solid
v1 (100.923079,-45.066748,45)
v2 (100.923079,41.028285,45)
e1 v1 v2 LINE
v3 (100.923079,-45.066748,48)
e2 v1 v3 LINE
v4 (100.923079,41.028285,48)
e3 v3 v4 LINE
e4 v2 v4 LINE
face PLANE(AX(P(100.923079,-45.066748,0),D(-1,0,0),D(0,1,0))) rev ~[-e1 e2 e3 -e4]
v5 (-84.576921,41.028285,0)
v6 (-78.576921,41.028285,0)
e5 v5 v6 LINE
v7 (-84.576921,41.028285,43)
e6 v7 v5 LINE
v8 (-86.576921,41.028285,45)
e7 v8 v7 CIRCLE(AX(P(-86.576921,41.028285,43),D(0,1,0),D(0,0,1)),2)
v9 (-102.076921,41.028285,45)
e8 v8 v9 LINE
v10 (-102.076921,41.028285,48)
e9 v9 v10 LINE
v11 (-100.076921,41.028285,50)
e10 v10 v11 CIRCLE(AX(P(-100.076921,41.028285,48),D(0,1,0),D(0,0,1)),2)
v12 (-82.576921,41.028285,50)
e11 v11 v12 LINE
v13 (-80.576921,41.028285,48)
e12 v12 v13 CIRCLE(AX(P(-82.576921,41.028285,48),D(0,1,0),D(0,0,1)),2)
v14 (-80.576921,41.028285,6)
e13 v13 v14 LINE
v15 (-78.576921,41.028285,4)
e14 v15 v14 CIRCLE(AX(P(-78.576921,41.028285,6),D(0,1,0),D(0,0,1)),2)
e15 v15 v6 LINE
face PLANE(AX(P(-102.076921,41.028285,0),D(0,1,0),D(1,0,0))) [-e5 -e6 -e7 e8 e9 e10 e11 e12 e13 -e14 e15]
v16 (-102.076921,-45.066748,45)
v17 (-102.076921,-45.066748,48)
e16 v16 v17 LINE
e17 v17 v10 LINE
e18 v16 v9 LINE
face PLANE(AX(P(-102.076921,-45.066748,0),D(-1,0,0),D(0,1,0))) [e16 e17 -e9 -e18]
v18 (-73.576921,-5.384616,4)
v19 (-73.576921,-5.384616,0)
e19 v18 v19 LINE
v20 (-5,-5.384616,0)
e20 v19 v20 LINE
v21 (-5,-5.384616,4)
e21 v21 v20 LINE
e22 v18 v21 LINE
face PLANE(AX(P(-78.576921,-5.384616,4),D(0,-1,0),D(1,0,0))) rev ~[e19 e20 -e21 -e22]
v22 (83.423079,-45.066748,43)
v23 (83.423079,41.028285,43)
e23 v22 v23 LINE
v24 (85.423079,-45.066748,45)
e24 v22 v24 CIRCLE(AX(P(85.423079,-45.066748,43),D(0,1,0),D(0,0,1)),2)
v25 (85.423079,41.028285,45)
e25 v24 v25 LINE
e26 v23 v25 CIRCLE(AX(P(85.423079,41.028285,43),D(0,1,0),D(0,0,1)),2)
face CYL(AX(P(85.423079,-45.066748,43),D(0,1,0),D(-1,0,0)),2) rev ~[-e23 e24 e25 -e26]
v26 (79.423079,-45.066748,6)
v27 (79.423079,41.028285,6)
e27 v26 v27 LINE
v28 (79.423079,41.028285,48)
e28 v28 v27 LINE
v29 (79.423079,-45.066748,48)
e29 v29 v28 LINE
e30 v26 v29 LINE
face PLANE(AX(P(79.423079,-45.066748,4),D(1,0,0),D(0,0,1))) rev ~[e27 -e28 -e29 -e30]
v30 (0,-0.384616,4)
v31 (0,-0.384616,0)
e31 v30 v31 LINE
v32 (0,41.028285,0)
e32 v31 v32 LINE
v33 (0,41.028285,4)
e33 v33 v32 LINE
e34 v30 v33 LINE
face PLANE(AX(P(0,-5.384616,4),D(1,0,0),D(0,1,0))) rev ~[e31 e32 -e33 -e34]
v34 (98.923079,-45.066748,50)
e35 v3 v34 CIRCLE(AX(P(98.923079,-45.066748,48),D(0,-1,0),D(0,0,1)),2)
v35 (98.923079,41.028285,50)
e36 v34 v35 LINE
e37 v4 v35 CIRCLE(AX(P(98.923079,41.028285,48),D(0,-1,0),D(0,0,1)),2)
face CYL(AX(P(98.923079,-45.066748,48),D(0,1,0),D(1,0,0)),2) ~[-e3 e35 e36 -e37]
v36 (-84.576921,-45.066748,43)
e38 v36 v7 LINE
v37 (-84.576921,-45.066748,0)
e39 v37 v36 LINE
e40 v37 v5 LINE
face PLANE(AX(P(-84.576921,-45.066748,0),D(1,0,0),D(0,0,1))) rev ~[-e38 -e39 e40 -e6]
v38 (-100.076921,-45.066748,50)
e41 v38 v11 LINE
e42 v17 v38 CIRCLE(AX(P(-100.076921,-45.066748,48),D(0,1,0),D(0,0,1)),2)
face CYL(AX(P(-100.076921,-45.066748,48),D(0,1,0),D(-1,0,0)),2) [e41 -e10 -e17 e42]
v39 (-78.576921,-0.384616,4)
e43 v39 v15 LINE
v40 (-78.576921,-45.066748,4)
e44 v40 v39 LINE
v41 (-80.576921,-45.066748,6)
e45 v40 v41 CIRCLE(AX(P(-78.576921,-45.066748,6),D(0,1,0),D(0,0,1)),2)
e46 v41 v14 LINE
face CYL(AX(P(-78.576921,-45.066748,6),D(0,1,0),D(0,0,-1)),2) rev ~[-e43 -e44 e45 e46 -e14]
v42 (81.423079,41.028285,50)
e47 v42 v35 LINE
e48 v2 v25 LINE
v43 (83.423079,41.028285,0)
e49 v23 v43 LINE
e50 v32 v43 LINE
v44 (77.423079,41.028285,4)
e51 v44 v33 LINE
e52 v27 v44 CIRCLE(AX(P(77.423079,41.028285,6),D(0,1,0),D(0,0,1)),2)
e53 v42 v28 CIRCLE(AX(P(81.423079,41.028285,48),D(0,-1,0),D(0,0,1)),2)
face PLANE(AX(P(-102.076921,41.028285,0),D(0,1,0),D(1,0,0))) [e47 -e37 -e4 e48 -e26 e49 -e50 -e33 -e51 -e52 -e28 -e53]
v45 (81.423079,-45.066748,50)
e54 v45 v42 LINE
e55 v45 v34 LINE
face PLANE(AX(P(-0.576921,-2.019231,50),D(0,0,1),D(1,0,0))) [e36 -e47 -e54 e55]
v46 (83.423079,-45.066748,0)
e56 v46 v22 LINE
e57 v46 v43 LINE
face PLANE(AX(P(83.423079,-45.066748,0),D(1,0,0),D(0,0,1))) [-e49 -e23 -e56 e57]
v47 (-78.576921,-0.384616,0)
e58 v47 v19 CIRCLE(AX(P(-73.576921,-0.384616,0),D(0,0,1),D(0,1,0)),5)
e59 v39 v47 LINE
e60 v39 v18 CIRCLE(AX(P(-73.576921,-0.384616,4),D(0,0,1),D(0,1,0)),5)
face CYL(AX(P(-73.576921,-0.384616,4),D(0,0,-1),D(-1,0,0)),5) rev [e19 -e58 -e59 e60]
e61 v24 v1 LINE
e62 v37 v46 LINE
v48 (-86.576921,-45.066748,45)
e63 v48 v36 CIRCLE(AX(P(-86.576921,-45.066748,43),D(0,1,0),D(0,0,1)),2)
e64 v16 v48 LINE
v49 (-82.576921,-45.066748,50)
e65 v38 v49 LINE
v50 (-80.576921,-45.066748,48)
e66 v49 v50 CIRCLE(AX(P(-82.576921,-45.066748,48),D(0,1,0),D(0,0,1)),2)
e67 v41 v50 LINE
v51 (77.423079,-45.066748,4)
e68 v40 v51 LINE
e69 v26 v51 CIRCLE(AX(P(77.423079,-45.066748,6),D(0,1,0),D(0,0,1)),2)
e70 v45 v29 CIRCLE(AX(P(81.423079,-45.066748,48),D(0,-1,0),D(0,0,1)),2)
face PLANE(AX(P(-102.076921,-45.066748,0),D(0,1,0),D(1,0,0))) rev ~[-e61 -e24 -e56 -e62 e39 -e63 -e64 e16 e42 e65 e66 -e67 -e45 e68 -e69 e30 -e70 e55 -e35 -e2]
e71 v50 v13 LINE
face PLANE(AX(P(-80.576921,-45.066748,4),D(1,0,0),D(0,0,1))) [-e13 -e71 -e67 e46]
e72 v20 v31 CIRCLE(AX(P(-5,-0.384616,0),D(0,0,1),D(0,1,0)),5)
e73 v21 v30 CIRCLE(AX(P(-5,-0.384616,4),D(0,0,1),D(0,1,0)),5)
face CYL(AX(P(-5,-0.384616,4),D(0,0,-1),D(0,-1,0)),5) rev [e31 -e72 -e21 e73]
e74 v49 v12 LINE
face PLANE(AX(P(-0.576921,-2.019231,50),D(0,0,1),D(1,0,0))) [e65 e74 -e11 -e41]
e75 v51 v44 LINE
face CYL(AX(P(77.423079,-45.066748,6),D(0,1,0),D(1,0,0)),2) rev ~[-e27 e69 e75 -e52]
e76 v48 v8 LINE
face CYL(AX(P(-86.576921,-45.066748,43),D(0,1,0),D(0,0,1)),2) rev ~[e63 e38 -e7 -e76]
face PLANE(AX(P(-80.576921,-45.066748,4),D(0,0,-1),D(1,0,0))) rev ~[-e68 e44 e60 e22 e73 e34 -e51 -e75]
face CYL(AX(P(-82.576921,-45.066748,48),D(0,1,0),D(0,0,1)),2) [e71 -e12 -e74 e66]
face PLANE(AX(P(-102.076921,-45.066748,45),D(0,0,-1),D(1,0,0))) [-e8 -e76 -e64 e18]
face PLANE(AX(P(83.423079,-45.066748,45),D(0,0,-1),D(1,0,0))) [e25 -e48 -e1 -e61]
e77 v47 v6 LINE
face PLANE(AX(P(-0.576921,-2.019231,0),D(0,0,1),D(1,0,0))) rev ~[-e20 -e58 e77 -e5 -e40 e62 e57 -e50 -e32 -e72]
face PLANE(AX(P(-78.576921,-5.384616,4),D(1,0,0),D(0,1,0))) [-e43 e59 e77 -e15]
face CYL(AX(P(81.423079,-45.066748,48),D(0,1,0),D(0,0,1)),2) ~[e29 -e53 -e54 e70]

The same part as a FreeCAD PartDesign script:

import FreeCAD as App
import Part
import Sketcher
Q = App.Units.Quantity


def edges_at(feature, points):
    """Names of the edges that pass closest to the given points."""
    edges = feature.Shape.Edges
    near = lambda p: min(range(len(edges)), key=lambda i: edges[i].distToShape(Part.Vertex(*p))[0])
    return sorted({f"Edge{near(p) + 1}" for p in points})


def add_polygon(sketch, points):
    """Adds a closed chain of lines whose ends are joined by coincident constraints."""
    first, n = sketch.GeometryCount, len(points)
    for a, b in zip(points, points[1:] + points[:1]):
        sketch.addGeometry(Part.LineSegment(App.Vector(*a, 0), App.Vector(*b, 0)), False)
    for i in range(n):
        sketch.addConstraint(Sketcher.Constraint("Coincident", first + i, 2, first + (i + 1) % n, 1))

doc = App.newDocument("Part")
body = doc.addObject("PartDesign::Body", "Body")

# Sketch on XY plane
sketch1 = body.newObject("Sketcher::SketchObject", "Sketch")
sketch1.AttachmentSupport = (doc.getObject("XY_Plane"), [""])
sketch1.MapMode = "FlatFace"
add_polygon(sketch1, [(-102, 41), (-102, -45), (101, -45), (101, 41)])  # lines 0-3
sketch1.addConstraint([
    Sketcher.Constraint("Vertical", 0),
    Sketcher.Constraint("Horizontal", 1),
    Sketcher.Constraint("Vertical", 2),
    Sketcher.Constraint("Horizontal", 3),
    Sketcher.Constraint("DistanceX", 1, 1, 1, 2, Q("203 mm")),
    Sketcher.Constraint("DistanceY", 0, 2, 0, 1, Q("86.095033 mm")),
    Sketcher.Constraint("DistanceX", 0, 2, -1, 1, Q("102.076921 mm")),
    Sketcher.Constraint("DistanceY", 0, 2, -1, 1, Q("45.066748 mm")),
])
pad1 = body.newObject("PartDesign::Pad", "Pad")
pad1.Profile = sketch1
pad1.Length = 50

# Sketch on XZ plane
sketch2 = body.newObject("Sketcher::SketchObject", "Sketch001")
sketch2.AttachmentSupport = (doc.getObject("XZ_Plane"), [""])
sketch2.MapMode = "FlatFace"
sketch2.AttachmentOffset = App.Placement(App.Vector(0, 0, 45.066748), App.Rotation())
add_polygon(sketch2, [(-102, 45), (-102, 0), (-85, 0), (-85, 45)])  # lines 0-3
sketch2.addConstraint([
    Sketcher.Constraint("Vertical", 0),
    Sketcher.Constraint("Horizontal", 1),
    Sketcher.Constraint("Vertical", 2),
    Sketcher.Constraint("Horizontal", 3),
    Sketcher.Constraint("PointOnObject", 0, 2, -1),
    Sketcher.Constraint("DistanceY", 0, 2, 0, 1, Q("45 mm")),
    Sketcher.Constraint("DistanceX", 1, 1, 1, 2, Q("17.5 mm")),
    Sketcher.Constraint("DistanceX", 0, 2, -1, 1, Q("102.076921 mm")),
])
pocket1 = body.newObject("PartDesign::Pocket", "Pocket")
pocket1.Profile = sketch2
pocket1.Type = "ThroughAll"

# Sketch on XZ plane
sketch3 = body.newObject("Sketcher::SketchObject", "Sketch002")
sketch3.AttachmentSupport = (doc.getObject("XZ_Plane"), [""])
sketch3.MapMode = "FlatFace"
sketch3.AttachmentOffset = App.Placement(App.Vector(0, 0, 45.066748), App.Rotation())
add_polygon(sketch3, [(83, 45), (83, 0), (101, 0), (101, 45)])  # lines 0-3
sketch3.addConstraint([
    Sketcher.Constraint("Vertical", 0),
    Sketcher.Constraint("Horizontal", 1),
    Sketcher.Constraint("Vertical", 2),
    Sketcher.Constraint("Horizontal", 3),
    Sketcher.Constraint("PointOnObject", 0, 2, -1),
    Sketcher.Constraint("DistanceY", 0, 2, 0, 1, Q("45 mm")),
    Sketcher.Constraint("DistanceX", 1, 1, 1, 2, Q("17.5 mm")),
    Sketcher.Constraint("DistanceX", -1, 1, 0, 2, Q("83.423079 mm")),
])
pocket2 = body.newObject("PartDesign::Pocket", "Pocket001")
pocket2.Profile = sketch3
pocket2.Type = "ThroughAll"

# Sketch on XZ plane
sketch4 = body.newObject("Sketcher::SketchObject", "Sketch003")
sketch4.AttachmentSupport = (doc.getObject("XZ_Plane"), [""])
sketch4.MapMode = "FlatFace"
sketch4.AttachmentOffset = App.Placement(App.Vector(0, 0, 45.066748), App.Rotation())
add_polygon(sketch4, [(-81, 50), (-81, 4), (79, 4), (79, 50)])  # lines 0-3
sketch4.addConstraint([
    Sketcher.Constraint("Vertical", 0),
    Sketcher.Constraint("Horizontal", 1),
    Sketcher.Constraint("Vertical", 2),
    Sketcher.Constraint("Horizontal", 3),
    Sketcher.Constraint("DistanceX", 1, 1, 1, 2, Q("160 mm")),
    Sketcher.Constraint("DistanceY", 0, 2, 0, 1, Q("46 mm")),
    Sketcher.Constraint("DistanceY", -1, 1, 0, 2, Q("4 mm")),
    Sketcher.Constraint("DistanceX", 0, 2, -1, 1, Q("80.576921 mm")),
])
pocket3 = body.newObject("PartDesign::Pocket", "Pocket002")
pocket3.Profile = sketch4
pocket3.Type = "ThroughAll"
doc.recompute()

fillet = body.newObject("PartDesign::Fillet", "Fillet")
fillet.Base = (pocket3, edges_at(pocket3, [
    (79.423, -2.019, 50),
    (-80.577, -2.019, 50),
    (-84.577, -2.019, 45),
    (83.423, -2.019, 45),
    (79.423, -2.019, 4),
    (-80.577, -2.019, 4),
    (100.923, -2.019, 50),
    (-102.077, -2.019, 50),
]))
fillet.Radius = 2

# Sketch on XY plane
sketch5 = body.newObject("Sketcher::SketchObject", "Sketch004")
sketch5.AttachmentSupport = (doc.getObject("XY_Plane"), [""])
sketch5.MapMode = "FlatFace"
sketch5.AttachmentOffset = App.Placement(App.Vector(0, 0, 4), App.Rotation())
add_polygon(sketch5, [(-79, 41), (-79, -5), (0, -5), (0, 41)])  # lines 0-3
sketch5.addConstraint([
    Sketcher.Constraint("Vertical", 0),
    Sketcher.Constraint("Horizontal", 1),
    Sketcher.Constraint("Vertical", 2),
    Sketcher.Constraint("Horizontal", 3),
    Sketcher.Constraint("PointOnObject", 1, 2, -2),
    Sketcher.Constraint("DistanceY", 0, 2, 0, 1, Q("46.412901 mm")),
    Sketcher.Constraint("DistanceX", 1, 1, 1, 2, Q("78.576921 mm")),
    Sketcher.Constraint("DistanceY", 0, 2, -1, 1, Q("5.384616 mm")),
])
pocket4 = body.newObject("PartDesign::Pocket", "Pocket003")
pocket4.Profile = sketch5
pocket4.Length = 25
doc.recompute()

fillet2 = body.newObject("PartDesign::Fillet", "Fillet001")
fillet2.Base = (pocket4, edges_at(pocket4, [(0, -5.385, 2), (-78.577, -5.385, 2)]))
fillet2.Radius = 5

doc.recompute()
